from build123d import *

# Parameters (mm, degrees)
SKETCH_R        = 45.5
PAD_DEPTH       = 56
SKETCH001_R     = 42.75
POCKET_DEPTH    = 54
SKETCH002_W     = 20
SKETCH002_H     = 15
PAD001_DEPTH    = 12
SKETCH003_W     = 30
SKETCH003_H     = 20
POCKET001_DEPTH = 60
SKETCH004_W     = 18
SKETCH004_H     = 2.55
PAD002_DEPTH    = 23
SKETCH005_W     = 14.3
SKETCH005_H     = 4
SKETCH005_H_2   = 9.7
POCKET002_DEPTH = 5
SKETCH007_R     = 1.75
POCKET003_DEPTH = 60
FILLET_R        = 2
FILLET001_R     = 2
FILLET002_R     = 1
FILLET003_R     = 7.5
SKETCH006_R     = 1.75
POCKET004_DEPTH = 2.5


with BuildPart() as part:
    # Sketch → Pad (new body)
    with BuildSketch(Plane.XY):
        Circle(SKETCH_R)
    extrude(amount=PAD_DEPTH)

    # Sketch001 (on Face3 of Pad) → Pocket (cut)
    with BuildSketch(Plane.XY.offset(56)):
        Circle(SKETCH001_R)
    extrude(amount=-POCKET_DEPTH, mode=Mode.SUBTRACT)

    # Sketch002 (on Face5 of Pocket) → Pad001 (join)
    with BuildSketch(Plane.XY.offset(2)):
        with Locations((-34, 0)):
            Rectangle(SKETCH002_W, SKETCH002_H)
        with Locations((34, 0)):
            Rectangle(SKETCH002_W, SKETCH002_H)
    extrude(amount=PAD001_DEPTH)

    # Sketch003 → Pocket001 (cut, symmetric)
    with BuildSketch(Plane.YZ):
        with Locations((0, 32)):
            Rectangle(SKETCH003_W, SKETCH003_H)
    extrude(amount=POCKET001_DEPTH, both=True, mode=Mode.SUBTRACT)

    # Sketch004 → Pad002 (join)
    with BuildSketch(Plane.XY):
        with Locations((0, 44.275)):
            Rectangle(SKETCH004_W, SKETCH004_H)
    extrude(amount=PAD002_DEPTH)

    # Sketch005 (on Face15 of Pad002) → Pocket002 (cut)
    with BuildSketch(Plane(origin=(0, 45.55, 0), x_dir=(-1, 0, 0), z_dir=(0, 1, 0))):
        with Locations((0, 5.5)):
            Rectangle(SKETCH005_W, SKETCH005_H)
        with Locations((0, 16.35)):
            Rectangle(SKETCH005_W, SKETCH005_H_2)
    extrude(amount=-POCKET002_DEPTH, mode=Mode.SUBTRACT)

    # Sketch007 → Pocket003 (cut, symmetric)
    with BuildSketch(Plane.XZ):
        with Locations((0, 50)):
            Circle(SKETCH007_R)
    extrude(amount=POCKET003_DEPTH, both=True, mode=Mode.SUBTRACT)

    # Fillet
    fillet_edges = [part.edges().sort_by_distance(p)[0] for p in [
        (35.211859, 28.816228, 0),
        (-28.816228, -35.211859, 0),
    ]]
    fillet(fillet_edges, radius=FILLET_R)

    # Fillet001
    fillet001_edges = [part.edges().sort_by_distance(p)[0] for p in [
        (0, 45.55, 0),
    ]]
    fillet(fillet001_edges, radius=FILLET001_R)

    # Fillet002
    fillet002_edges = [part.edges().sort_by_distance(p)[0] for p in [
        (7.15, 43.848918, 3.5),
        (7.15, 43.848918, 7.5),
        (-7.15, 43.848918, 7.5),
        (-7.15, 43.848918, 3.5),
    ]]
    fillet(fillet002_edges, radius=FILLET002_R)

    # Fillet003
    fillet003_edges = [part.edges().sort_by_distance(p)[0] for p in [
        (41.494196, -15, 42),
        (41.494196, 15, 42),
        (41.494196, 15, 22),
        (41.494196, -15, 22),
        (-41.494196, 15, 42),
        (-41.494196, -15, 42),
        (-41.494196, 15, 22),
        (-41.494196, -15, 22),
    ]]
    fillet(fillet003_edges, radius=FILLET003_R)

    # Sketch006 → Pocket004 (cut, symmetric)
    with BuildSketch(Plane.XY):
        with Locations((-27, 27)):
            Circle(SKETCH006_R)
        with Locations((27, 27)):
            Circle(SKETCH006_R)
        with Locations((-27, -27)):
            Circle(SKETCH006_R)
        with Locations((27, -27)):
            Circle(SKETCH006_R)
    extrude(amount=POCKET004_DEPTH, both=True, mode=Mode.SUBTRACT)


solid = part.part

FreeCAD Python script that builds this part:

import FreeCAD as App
import Part
import Sketcher
from FreeCAD import Vector
Q = App.Units.Quantity


def edges_at(feature, points):
    """Names of the edges that pass closest to the given points."""
    edges = feature.Shape.Edges
    near = lambda p: min(range(len(edges)), key=lambda i: edges[i].distToShape(Part.Vertex(*p))[0])
    return sorted({f"Edge{near(p) + 1}" for p in points})

doc = App.newDocument("Part")
params = doc.addObject("Spreadsheet::Sheet", "Params")
for row, (alias, value) in enumerate([
    ("sketch1_diameter", "91 mm"),
    ("pad1_length", "56 mm"),
    ("sketch2_diameter", "85.5 mm"),
    ("pocket1_length", "54 mm"),
    ("sketch3_width", "20 mm"),
    ("sketch3_height", "15 mm"),
    ("pad2_length", "12 mm"),
    ("sketch4_width", "30 mm"),
    ("sketch4_height", "20 mm"),
    ("pocket2_length", "120 mm"),
    ("sketch5_width", "18 mm"),
    ("sketch5_height", "2.55 mm"),
    ("pad3_length", "23 mm"),
    ("sketch6_height", "4 mm"),
    ("sketch6_width", "14.3 mm"),
    ("sketch6_height2", "9.7 mm"),
    ("pocket3_length", "5 mm"),
    ("sketch7_diameter", "3.5 mm"),
    ("pocket4_length", "120 mm"),
    ("fillet_radius", "2 mm"),
    ("fillet2_radius", "2 mm"),
    ("fillet3_radius", "1 mm"),
    ("fillet4_radius", "7.5 mm"),
    ("sketch8_diameter", "3.5 mm"),
    ("pocket5_length", "5 mm"),
], start=1):
    params.set(f"A{row}", alias)
    params.set(f"B{row}", "=" + value)
    params.setAlias(f"B{row}", alias)

body = doc.addObject("PartDesign::Body", "Body")

# Sketch on XY plane
sketch1 = body.newObject("Sketcher::SketchObject", "Sketch")
sketch1.AttachmentSupport = (doc.getObject("XY_Plane"), [""])
sketch1.MapMode = "FlatFace"
sketch1.addGeometry(Part.Circle(Vector(0, 0, 0), Vector(0, 0, 1), 46), False)
sketch1.addConstraint([
    Sketcher.Constraint("Coincident", 0, 3, -1, 1),
    Sketcher.Constraint("Diameter", 0, Q("91 mm")),
])
sketch1.setExpression("Constraints[1]", "Params.sketch1_diameter")
pad1 = body.newObject("PartDesign::Pad", "Pad")
pad1.Profile = sketch1
pad1.setExpression("Length", "Params.pad1_length")

# Sketch on XY plane
sketch2 = body.newObject("Sketcher::SketchObject", "Sketch001")
sketch2.AttachmentSupport = (doc.getObject("XY_Plane"), [""])
sketch2.MapMode = "FlatFace"
sketch2.AttachmentOffset = App.Placement(Vector(0, 0, 56), App.Rotation())
sketch2.addGeometry(Part.Circle(Vector(0, 0, 0), Vector(0, 0, 1), 43), False)
sketch2.addConstraint([
    Sketcher.Constraint("Coincident", 0, 3, -1, 1),
    Sketcher.Constraint("Diameter", 0, Q("85.5 mm")),
])
sketch2.setExpression("Constraints[1]", "Params.sketch2_diameter")
pocket1 = body.newObject("PartDesign::Pocket", "Pocket")
pocket1.Profile = sketch2
pocket1.setExpression("Length", "Params.pocket1_length")

# Sketch on XY plane
sketch3 = body.newObject("Sketcher::SketchObject", "Sketch002")
sketch3.AttachmentSupport = (doc.getObject("XY_Plane"), [""])
sketch3.MapMode = "FlatFace"
sketch3.AttachmentOffset = App.Placement(Vector(0, 0, 2), App.Rotation())
sketch3.addGeometry([
    Part.LineSegment(Vector(-44, 8, 0), Vector(-44, -8, 0)),  # 0
    Part.LineSegment(Vector(-44, -8, 0), Vector(-24, -8, 0)),  # 1
    Part.LineSegment(Vector(-24, -8, 0), Vector(-24, 8, 0)),  # 2
    Part.LineSegment(Vector(-24, 8, 0), Vector(-44, 8, 0)),  # 3
    Part.LineSegment(Vector(24, 8, 0), Vector(24, -8, 0)),  # 4
    Part.LineSegment(Vector(24, -8, 0), Vector(44, -8, 0)),  # 5
    Part.LineSegment(Vector(44, -8, 0), Vector(44, 8, 0)),  # 6
    Part.LineSegment(Vector(44, 8, 0), Vector(24, 8, 0)),  # 7
], False)
sketch3.addConstraint([
    Sketcher.Constraint("Coincident", 0, 2, 1, 1),
    Sketcher.Constraint("Coincident", 1, 2, 2, 1),
    Sketcher.Constraint("Coincident", 2, 2, 3, 1),
    Sketcher.Constraint("Coincident", 3, 2, 0, 1),
    Sketcher.Constraint("Coincident", 4, 2, 5, 1),
    Sketcher.Constraint("Coincident", 5, 2, 6, 1),
    Sketcher.Constraint("Coincident", 6, 2, 7, 1),
    Sketcher.Constraint("Coincident", 7, 2, 4, 1),
    Sketcher.Constraint("Vertical", 0),
    Sketcher.Constraint("Horizontal", 1),
    Sketcher.Constraint("Vertical", 2),
    Sketcher.Constraint("Horizontal", 3),
    Sketcher.Constraint("Vertical", 4),
    Sketcher.Constraint("Horizontal", 5),
    Sketcher.Constraint("Vertical", 6),
    Sketcher.Constraint("Horizontal", 7),
    Sketcher.Constraint("Symmetric", 2, 2, 4, 2, -1, 1),
    Sketcher.Constraint("Symmetric", 0, 2, 6, 2, -1, 1),
    Sketcher.Constraint("Horizontal", 1, 2, 4, 2),
    Sketcher.Constraint("DistanceX", 1, 1, 1, 2, Q("20 mm")),
    Sketcher.Constraint("DistanceY", 0, 2, 0, 1, Q("15 mm")),
    Sketcher.Constraint("DistanceX", 0, 2, -1, 1, Q("44 mm")),
])
sketch3.setExpression("Constraints[19]", "Params.sketch3_width")
sketch3.setExpression("Constraints[20]", "Params.sketch3_height")
pad2 = body.newObject("PartDesign::Pad", "Pad001")
pad2.Profile = sketch3
pad2.setExpression("Length", "Params.pad2_length")

# Sketch on YZ plane
sketch4 = body.newObject("Sketcher::SketchObject", "Sketch003")
sketch4.AttachmentSupport = (doc.getObject("YZ_Plane"), [""])
sketch4.MapMode = "FlatFace"
sketch4.addGeometry([
    Part.LineSegment(Vector(-15, 42, 0), Vector(-15, 22, 0)),
    Part.LineSegment(Vector(-15, 22, 0), Vector(15, 22, 0)),
    Part.LineSegment(Vector(15, 22, 0), Vector(15, 42, 0)),
    Part.LineSegment(Vector(15, 42, 0), Vector(-15, 42, 0)),
], False)
sketch4.addConstraint([
    Sketcher.Constraint("Coincident", 0, 2, 1, 1),
    Sketcher.Constraint("Coincident", 1, 2, 2, 1),
    Sketcher.Constraint("Coincident", 2, 2, 3, 1),
    Sketcher.Constraint("Coincident", 3, 2, 0, 1),
    Sketcher.Constraint("Vertical", 0),
    Sketcher.Constraint("Horizontal", 1),
    Sketcher.Constraint("Vertical", 2),
    Sketcher.Constraint("Horizontal", 3),
    Sketcher.Constraint("DistanceX", 1, 1, 1, 2, Q("30 mm")),
    Sketcher.Constraint("DistanceY", 0, 2, 0, 1, Q("20 mm")),
    Sketcher.Constraint("DistanceX", 0, 2, -1, 1, Q("15 mm")),
    Sketcher.Constraint("DistanceY", -1, 1, 0, 2, Q("22 mm")),
])
sketch4.setExpression("Constraints[8]", "Params.sketch4_width")
sketch4.setExpression("Constraints[9]", "Params.sketch4_height")
pocket2 = body.newObject("PartDesign::Pocket", "Pocket001")
pocket2.Profile = sketch4
pocket2.setExpression("Length", "Params.pocket2_length")
pocket2.Midplane = True

# Sketch on XY plane
sketch5 = body.newObject("Sketcher::SketchObject", "Sketch004")
sketch5.AttachmentSupport = (doc.getObject("XY_Plane"), [""])
sketch5.MapMode = "FlatFace"
sketch5.addGeometry([
    Part.LineSegment(Vector(-9, 45.5, 0), Vector(-9, 43, 0)),
    Part.LineSegment(Vector(-9, 43, 0), Vector(9, 43, 0)),
    Part.LineSegment(Vector(9, 43, 0), Vector(9, 45.5, 0)),
    Part.LineSegment(Vector(9, 45.5, 0), Vector(-9, 45.5, 0)),
], False)
sketch5.addConstraint([
    Sketcher.Constraint("Coincident", 0, 2, 1, 1),
    Sketcher.Constraint("Coincident", 1, 2, 2, 1),
    Sketcher.Constraint("Coincident", 2, 2, 3, 1),
    Sketcher.Constraint("Coincident", 3, 2, 0, 1),
    Sketcher.Constraint("Vertical", 0),
    Sketcher.Constraint("Horizontal", 1),
    Sketcher.Constraint("Vertical", 2),
    Sketcher.Constraint("Horizontal", 3),
    Sketcher.Constraint("DistanceX", 1, 1, 1, 2, Q("18 mm")),
    Sketcher.Constraint("DistanceX", 0, 2, -1, 1, Q("9 mm")),
    Sketcher.Constraint("DistanceY", -1, 1, 0, 2, Q("43 mm")),
    Sketcher.Constraint("DistanceY", 0, 2, 0, 1, Q("2.55 mm")),
])
sketch5.setExpression("Constraints[8]", "Params.sketch5_width")
sketch5.setExpression("Constraints[11]", "Params.sketch5_height")
pad3 = body.newObject("PartDesign::Pad", "Pad002")
pad3.Profile = sketch5
pad3.setExpression("Length", "Params.pad3_length")

# Sketch on XZ plane
sketch6 = body.newObject("Sketcher::SketchObject", "Sketch005")
sketch6.AttachmentSupport = (doc.getObject("XZ_Plane"), [""])
sketch6.MapMode = "FlatFace"
sketch6.AttachmentOffset = App.Placement(Vector(0, 0, -45.55), App.Rotation())
sketch6.addGeometry([
    Part.LineSegment(Vector(7.2, 7.5, 0), Vector(7.2, 3.5, 0)),  # 0
    Part.LineSegment(Vector(7.2, 3.5, 0), Vector(-7.2, 3.5, 0)),  # 1
    Part.LineSegment(Vector(-7.2, 3.5, 0), Vector(-7.2, 7.5, 0)),  # 2
    Part.LineSegment(Vector(-7.2, 7.5, 0), Vector(7.2, 7.5, 0)),  # 3
    Part.LineSegment(Vector(7.2, 21.2, 0), Vector(7.2, 11.5, 0)),  # 4
    Part.LineSegment(Vector(7.2, 11.5, 0), Vector(-7.2, 11.5, 0)),  # 5
    Part.LineSegment(Vector(-7.2, 11.5, 0), Vector(-7.2, 21.2, 0)),  # 6
    Part.LineSegment(Vector(-7.2, 21.2, 0), Vector(7.2, 21.2, 0)),  # 7
], False)
sketch6.addConstraint([
    Sketcher.Constraint("Coincident", 0, 2, 1, 1),
    Sketcher.Constraint("Coincident", 1, 2, 2, 1),
    Sketcher.Constraint("Coincident", 2, 2, 3, 1),
    Sketcher.Constraint("Coincident", 3, 2, 0, 1),
    Sketcher.Constraint("Coincident", 4, 2, 5, 1),
    Sketcher.Constraint("Coincident", 5, 2, 6, 1),
    Sketcher.Constraint("Coincident", 6, 2, 7, 1),
    Sketcher.Constraint("Coincident", 7, 2, 4, 1),
    Sketcher.Constraint("Vertical", 0),
    Sketcher.Constraint("Horizontal", 1),
    Sketcher.Constraint("Vertical", 2),
    Sketcher.Constraint("Horizontal", 3),
    Sketcher.Constraint("Vertical", 4),
    Sketcher.Constraint("Horizontal", 5),
    Sketcher.Constraint("Vertical", 6),
    Sketcher.Constraint("Horizontal", 7),
    Sketcher.Constraint("Vertical", 3, 2, 4, 2),
    Sketcher.Constraint("Vertical", 2, 2, 5, 2),
    Sketcher.Constraint("DistanceY", 0, 2, 0, 1, Q("4 mm")),
    Sketcher.Constraint("DistanceX", 1, 2, 1, 1, Q("14.3 mm")),
    Sketcher.Constraint("DistanceY", 4, 2, 4, 1, Q("9.7 mm")),
    Sketcher.Constraint("DistanceY", 3, 2, 4, 2, Q("4 mm")),
    Sketcher.Constraint("DistanceY", -1, 1, 0, 2, Q("3.5 mm")),
    Sketcher.Constraint("DistanceX", -1, 1, 0, 2, Q("7.15 mm")),
])
sketch6.setExpression("Constraints[18]", "Params.sketch6_height")
sketch6.setExpression("Constraints[19]", "Params.sketch6_width")
sketch6.setExpression("Constraints[20]", "Params.sketch6_height2")
pocket3 = body.newObject("PartDesign::Pocket", "Pocket002")
pocket3.Profile = sketch6
pocket3.setExpression("Length", "Params.pocket3_length")
pocket3.Reversed = True

# Sketch on XZ plane
sketch7 = body.newObject("Sketcher::SketchObject", "Sketch006")
sketch7.AttachmentSupport = (doc.getObject("XZ_Plane"), [""])
sketch7.MapMode = "FlatFace"
sketch7.addGeometry(Part.Circle(Vector(0, 50, 0), Vector(0, 0, 1), 1.8), False)
sketch7.addConstraint([
    Sketcher.Constraint("PointOnObject", 0, 3, -2),
    Sketcher.Constraint("Diameter", 0, Q("3.5 mm")),
    Sketcher.Constraint("DistanceY", -1, 1, 0, 3, Q("50 mm")),
])
sketch7.setExpression("Constraints[1]", "Params.sketch7_diameter")
pocket4 = body.newObject("PartDesign::Pocket", "Pocket003")
pocket4.Profile = sketch7
pocket4.setExpression("Length", "Params.pocket4_length")
pocket4.Midplane = True
doc.recompute()

fillet = body.newObject("PartDesign::Fillet", "Fillet")
fillet.Base = (pocket4, edges_at(pocket4, [(35.212, 28.816, 0), (-28.816, -35.212, 0)]))
fillet.setExpression("Radius", "Params.fillet_radius")
doc.recompute()

fillet2 = body.newObject("PartDesign::Fillet", "Fillet001")
fillet2.Base = (fillet, edges_at(fillet, [(0, 45.55, 0)]))
fillet2.setExpression("Radius", "Params.fillet2_radius")
doc.recompute()

fillet3 = body.newObject("PartDesign::Fillet", "Fillet002")
fillet3.Base = (fillet2, edges_at(fillet2, [
    (7.15, 43.849, 3.5),
    (7.15, 43.849, 7.5),
    (-7.15, 43.849, 7.5),
    (-7.15, 43.849, 3.5),
]))
fillet3.setExpression("Radius", "Params.fillet3_radius")
doc.recompute()

fillet4 = body.newObject("PartDesign::Fillet", "Fillet003")
fillet4.Base = (fillet3, edges_at(fillet3, [
    (41.494, -15, 42),
    (41.494, 15, 42),
    (41.494, 15, 22),
    (41.494, -15, 22),
    (-41.494, 15, 42),
    (-41.494, -15, 42),
    (-41.494, 15, 22),
    (-41.494, -15, 22),
]))
fillet4.setExpression("Radius", "Params.fillet4_radius")

# Sketch on XY plane
sketch8 = body.newObject("Sketcher::SketchObject", "Sketch007")
sketch8.AttachmentSupport = (doc.getObject("XY_Plane"), [""])
sketch8.MapMode = "FlatFace"
sketch8.addGeometry([
    Part.Circle(Vector(-27, 27, 0), Vector(0, 0, 1), 1.8),
    Part.Circle(Vector(27, 27, 0), Vector(0, 0, 1), 1.8),
    Part.Circle(Vector(-27, -27, 0), Vector(0, 0, 1), 1.8),
    Part.Circle(Vector(27, -27, 0), Vector(0, 0, 1), 1.8),
], False)
sketch8.addConstraint([
    Sketcher.Constraint("Equal", 0, 1),
    Sketcher.Constraint("Equal", 1, 2),
    Sketcher.Constraint("Equal", 2, 3),
    Sketcher.Constraint("Symmetric", 1, 3, 2, 3, -1, 1),
    Sketcher.Constraint("Symmetric", 0, 3, 3, 3, -1, 1),
    Sketcher.Constraint("Symmetric", 0, 3, 1, 3, -2),
    Sketcher.Constraint("Diameter", 0, Q("3.5 mm")),
    Sketcher.Constraint("DistanceX", 0, 3, -1, 1, Q("27 mm")),
    Sketcher.Constraint("DistanceY", -1, 1, 0, 3, Q("27 mm")),
])
sketch8.setExpression("Constraints[6]", "Params.sketch8_diameter")
pocket5 = body.newObject("PartDesign::Pocket", "Pocket004")
pocket5.Profile = sketch8
pocket5.setExpression("Length", "Params.pocket5_length")
pocket5.Midplane = True

doc.recompute()
